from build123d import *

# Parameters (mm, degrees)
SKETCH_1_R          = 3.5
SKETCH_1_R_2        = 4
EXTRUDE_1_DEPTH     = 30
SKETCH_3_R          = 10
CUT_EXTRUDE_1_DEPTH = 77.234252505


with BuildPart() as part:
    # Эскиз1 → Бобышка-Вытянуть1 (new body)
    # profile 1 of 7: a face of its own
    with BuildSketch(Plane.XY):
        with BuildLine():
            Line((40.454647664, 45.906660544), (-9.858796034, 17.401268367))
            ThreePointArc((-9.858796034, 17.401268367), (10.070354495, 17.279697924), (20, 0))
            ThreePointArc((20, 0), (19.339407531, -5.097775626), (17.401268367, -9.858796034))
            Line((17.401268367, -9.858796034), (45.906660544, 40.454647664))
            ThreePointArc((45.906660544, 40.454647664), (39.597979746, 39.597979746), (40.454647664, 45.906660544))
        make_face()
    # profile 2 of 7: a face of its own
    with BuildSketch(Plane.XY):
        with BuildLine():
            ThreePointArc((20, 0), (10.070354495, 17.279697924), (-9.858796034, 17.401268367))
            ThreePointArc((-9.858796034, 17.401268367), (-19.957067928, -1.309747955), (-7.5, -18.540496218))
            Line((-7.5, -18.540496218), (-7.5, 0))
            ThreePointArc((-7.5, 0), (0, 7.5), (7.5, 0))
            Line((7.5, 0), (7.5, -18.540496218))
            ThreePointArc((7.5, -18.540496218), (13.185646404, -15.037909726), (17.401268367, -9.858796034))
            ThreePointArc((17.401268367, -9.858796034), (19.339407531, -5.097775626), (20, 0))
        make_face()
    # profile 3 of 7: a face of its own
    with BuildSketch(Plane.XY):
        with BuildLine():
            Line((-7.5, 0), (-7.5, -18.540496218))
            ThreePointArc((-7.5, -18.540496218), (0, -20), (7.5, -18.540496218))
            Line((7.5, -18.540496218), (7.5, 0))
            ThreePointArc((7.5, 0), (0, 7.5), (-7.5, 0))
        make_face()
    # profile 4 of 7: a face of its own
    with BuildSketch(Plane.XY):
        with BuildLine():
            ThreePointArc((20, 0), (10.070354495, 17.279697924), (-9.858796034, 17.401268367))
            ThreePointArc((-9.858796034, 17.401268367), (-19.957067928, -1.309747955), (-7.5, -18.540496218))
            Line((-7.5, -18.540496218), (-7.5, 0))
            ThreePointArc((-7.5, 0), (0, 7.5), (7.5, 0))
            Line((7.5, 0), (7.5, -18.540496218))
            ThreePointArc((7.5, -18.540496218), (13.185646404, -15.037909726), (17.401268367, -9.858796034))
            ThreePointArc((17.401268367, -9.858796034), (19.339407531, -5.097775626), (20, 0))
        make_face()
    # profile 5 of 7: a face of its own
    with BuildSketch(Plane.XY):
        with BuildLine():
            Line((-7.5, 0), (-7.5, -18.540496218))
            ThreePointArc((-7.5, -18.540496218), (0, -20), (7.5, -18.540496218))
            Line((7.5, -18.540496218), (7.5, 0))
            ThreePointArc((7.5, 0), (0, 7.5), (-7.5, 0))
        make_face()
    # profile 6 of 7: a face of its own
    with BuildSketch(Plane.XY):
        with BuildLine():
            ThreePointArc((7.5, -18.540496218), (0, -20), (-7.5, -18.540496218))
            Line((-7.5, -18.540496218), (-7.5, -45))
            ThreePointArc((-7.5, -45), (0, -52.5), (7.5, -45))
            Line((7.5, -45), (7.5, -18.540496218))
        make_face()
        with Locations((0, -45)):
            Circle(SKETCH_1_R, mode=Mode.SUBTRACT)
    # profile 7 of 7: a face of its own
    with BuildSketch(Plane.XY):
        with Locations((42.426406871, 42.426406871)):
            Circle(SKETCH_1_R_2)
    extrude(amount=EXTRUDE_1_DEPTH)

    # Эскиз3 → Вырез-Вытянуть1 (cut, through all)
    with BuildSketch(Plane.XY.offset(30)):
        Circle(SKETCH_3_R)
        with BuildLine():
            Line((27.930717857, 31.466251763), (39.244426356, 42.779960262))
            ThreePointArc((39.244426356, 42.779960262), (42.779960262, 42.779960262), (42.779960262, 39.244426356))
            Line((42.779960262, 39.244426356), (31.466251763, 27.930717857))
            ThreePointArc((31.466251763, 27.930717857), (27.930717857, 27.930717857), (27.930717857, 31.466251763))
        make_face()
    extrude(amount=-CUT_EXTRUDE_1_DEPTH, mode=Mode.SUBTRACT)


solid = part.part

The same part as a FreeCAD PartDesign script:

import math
import FreeCAD as App
import Part
import Sketcher

V = App.Vector
Q = App.Units.Quantity

doc = App.newDocument("Part")
body = doc.addObject("PartDesign::Body", "Body")

# Sketch on XY plane
sketch1 = body.newObject("Sketcher::SketchObject", "Sketch")
sketch1.AttachmentSupport = (doc.getObject("XY_Plane"), [""])
sketch1.MapMode = "FlatFace"
sketch1.addGeometry([
    Part.LineSegment(V(40.5, 45.9, 0), V(-9.9, 17.4, 0)),  # 0
    Part.ArcOfCircle(Part.Circle(V(0, 0, 0), V(0, 0, 1), 20), math.radians(120), math.radians(248)),  # 1
    Part.LineSegment(V(-7.5, -18.5, 0), V(-7.5, -45, 0)),  # 2
    Part.ArcOfCircle(Part.Circle(V(0, -45, 0), V(0, 0, 1), 7.5), math.radians(180), math.radians(360)),  # 3
    Part.LineSegment(V(7.5, -45, 0), V(7.5, -18.5, 0)),  # 4
    Part.ArcOfCircle(Part.Circle(V(0, 0, 0), V(0, 0, 1), 20), math.radians(-68), math.radians(-30)),  # 5
    Part.LineSegment(V(17.4, -9.9, 0), V(45.9, 40.5, 0)),  # 6
    Part.ArcOfCircle(Part.Circle(V(42.4, 42.4, 0), V(0, 0, 1), 4), math.radians(-30), math.radians(120)),  # 7
    Part.Circle(V(0, -45, 0), V(0, 0, 1), 3.5),  # 8
], False)
sketch1.addConstraint([
    Sketcher.Constraint("Tangent", 0, 2, 1, 1),
    Sketcher.Constraint("Coincident", 1, 2, 2, 1),
    Sketcher.Constraint("Tangent", 2, 2, 3, 1),
    Sketcher.Constraint("Tangent", 3, 2, 4, 1),
    Sketcher.Constraint("Coincident", 4, 2, 5, 1),
    Sketcher.Constraint("Tangent", 5, 2, 6, 1),
    Sketcher.Constraint("Tangent", 6, 2, 7, 1),
    Sketcher.Constraint("Tangent", 7, 2, 0, 1),
    Sketcher.Constraint("Vertical", 2),
    Sketcher.Constraint("Vertical", 4),
    Sketcher.Constraint("Coincident", 1, 3, -1, 1),
    Sketcher.Constraint("Coincident", 5, 3, -1, 1),
    Sketcher.Constraint("Coincident", 8, 3, 3, 3),
    Sketcher.Constraint("Equal", 1, 5),
    Sketcher.Constraint("PointOnObject", 3, 3, -2),
    Sketcher.Constraint("Diameter", 8, 7.0),
    Sketcher.Constraint("Radius", 1, 20.0),
    Sketcher.Constraint("Radius", 7, 4.0),
    Sketcher.Constraint("Radius", 3, 7.5),
    Sketcher.Constraint("DistanceY", 3, 3, -1, 1, 45.0),
    Sketcher.Constraint("DistanceY", 4, 2, 5, 2, 8.6817),
    Sketcher.Constraint("Distance", 0, 57.827329),
])
pad1 = body.newObject("PartDesign::Pad", "Pad")
pad1.Profile = sketch1
pad1.Length = 30

# Sketch on XY plane
sketch2 = body.newObject("Sketcher::SketchObject", "Sketch001")
sketch2.AttachmentSupport = (doc.getObject("XY_Plane"), [""])
sketch2.MapMode = "FlatFace"
sketch2.AttachmentOffset = App.Placement(V(0, 0, 30), App.Rotation())
sketch2.addGeometry([
    Part.Circle(V(0, 0, 0), V(0, 0, 1), 10),  # 0
    Part.LineSegment(V(39.2, 42.8, 0), V(27.9, 31.5, 0)),  # 1
    Part.ArcOfCircle(Part.Circle(V(29.7, 29.7, 0), V(0, 0, 1), 2.5), math.radians(135), math.radians(315)),  # 2
    Part.LineSegment(V(31.5, 27.9, 0), V(42.8, 39.2, 0)),  # 3
    Part.ArcOfCircle(Part.Circle(V(41, 41, 0), V(0, 0, 1), 2.5), math.radians(-45), math.radians(135)),  # 4
], False)
sketch2.addConstraint([
    Sketcher.Constraint("Tangent", 1, 2, 2, 1),
    Sketcher.Constraint("Tangent", 2, 2, 3, 1),
    Sketcher.Constraint("Tangent", 3, 2, 4, 1),
    Sketcher.Constraint("Tangent", 4, 2, 1, 1),
    Sketcher.Constraint("Coincident", 0, 3, -1, 1),
    Sketcher.Constraint("Equal", 2, 4),
    Sketcher.Constraint("Diameter", 0, 20.0),
    Sketcher.Constraint("Radius", 2, 2.5),
    Sketcher.Constraint("Angle", 1, Q("-135 deg")),
    Sketcher.Constraint("Distance", 1, 16.0),
    Sketcher.Constraint("DistanceY", -1, 1, 1, 2, 31.466252),
    Sketcher.Constraint("DistanceX", -1, 1, 2, 2, 31.466252),
])
pocket1 = body.newObject("PartDesign::Pocket", "Pocket")
pocket1.Profile = sketch2
pocket1.Type = "ThroughAll"

doc.recompute()
